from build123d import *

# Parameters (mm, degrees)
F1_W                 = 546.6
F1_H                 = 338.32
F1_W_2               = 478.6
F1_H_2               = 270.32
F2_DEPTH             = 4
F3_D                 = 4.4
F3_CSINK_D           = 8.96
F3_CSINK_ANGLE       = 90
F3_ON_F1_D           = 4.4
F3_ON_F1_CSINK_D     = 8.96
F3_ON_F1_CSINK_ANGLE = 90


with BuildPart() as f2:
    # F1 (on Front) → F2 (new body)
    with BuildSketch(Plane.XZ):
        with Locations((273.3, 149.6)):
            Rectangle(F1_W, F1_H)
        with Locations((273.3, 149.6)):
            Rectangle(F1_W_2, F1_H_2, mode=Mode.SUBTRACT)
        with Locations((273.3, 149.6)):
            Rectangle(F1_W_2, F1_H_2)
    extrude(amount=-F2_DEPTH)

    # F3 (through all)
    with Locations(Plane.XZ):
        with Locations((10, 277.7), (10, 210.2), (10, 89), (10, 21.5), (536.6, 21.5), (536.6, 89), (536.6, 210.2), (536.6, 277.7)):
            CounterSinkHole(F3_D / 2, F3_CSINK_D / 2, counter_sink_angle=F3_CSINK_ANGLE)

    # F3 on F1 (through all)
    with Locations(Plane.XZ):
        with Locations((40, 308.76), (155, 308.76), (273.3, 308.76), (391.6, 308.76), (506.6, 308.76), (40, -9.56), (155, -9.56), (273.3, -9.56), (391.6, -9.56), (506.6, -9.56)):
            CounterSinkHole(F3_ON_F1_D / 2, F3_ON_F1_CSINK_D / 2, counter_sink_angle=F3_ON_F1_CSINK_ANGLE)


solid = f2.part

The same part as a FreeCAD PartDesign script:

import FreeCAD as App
import Part
import Sketcher

V = App.Vector

doc = App.newDocument("Part")
body = doc.addObject("PartDesign::Body", "Body")

sketch1 = doc.addObject("Sketcher::SketchObject", "Sketch")
body.addObject(sketch1)
sketch1.AttachmentSupport = (doc.XZ_Plane, [""])
sketch1.MapMode = "FlatFace"
sketch1.addGeometry([
    Part.LineSegment(V(0, 319, 0), V(0, -20, 0)),
    Part.LineSegment(V(0, -20, 0), V(547, -20, 0)),
    Part.LineSegment(V(547, -20, 0), V(547, 319, 0)),
    Part.LineSegment(V(547, 319, 0), V(0, 319, 0)),
], False)
sketch1.addConstraint([
    Sketcher.Constraint("Coincident", 0, 2, 1, 1),
    Sketcher.Constraint("Coincident", 1, 2, 2, 1),
    Sketcher.Constraint("Coincident", 2, 2, 3, 1),
    Sketcher.Constraint("Coincident", 3, 2, 0, 1),
    Sketcher.Constraint("Vertical", 0),
    Sketcher.Constraint("Horizontal", 1),
    Sketcher.Constraint("Vertical", 2),
    Sketcher.Constraint("Horizontal", 3),
    Sketcher.Constraint("PointOnObject", 0, 2, -2),
    Sketcher.Constraint("DistanceX", 1, 1, 1, 2, 546.6),
    Sketcher.Constraint("DistanceY", 0, 2, 0, 1, 338.32),
    Sketcher.Constraint("DistanceY", 0, 2, -1, 1, 19.56),
])
pad1 = doc.addObject("PartDesign::Pad", "Pad")
body.addObject(pad1)
pad1.Profile = sketch1
pad1.Length = 4
pad1.Reversed = True

sketch2 = doc.addObject("Sketcher::SketchObject", "Sketch001")
body.addObject(sketch2)
sketch2.AttachmentSupport = (doc.XZ_Plane, [""])
sketch2.MapMode = "FlatFace"
sketch2.addGeometry([
    Part.Circle(V(10, 277.7, 0), V(0, 0, 1), 2.2),
    Part.Circle(V(10, 210.2, 0), V(0, 0, 1), 2.2),
    Part.Circle(V(10, 89, 0), V(0, 0, 1), 2.2),
    Part.Circle(V(10, 21.5, 0), V(0, 0, 1), 2.2),
    Part.Circle(V(536.6, 21.5, 0), V(0, 0, 1), 2.2),
    Part.Circle(V(536.6, 89, 0), V(0, 0, 1), 2.2),
    Part.Circle(V(536.6, 210.2, 0), V(0, 0, 1), 2.2),
    Part.Circle(V(536.6, 277.7, 0), V(0, 0, 1), 2.2),
], False)
sketch2.addConstraint([
    Sketcher.Constraint("Equal", 0, 1),
    Sketcher.Constraint("Equal", 1, 2),
    Sketcher.Constraint("Equal", 2, 3),
    Sketcher.Constraint("Equal", 3, 4),
    Sketcher.Constraint("Equal", 4, 5),
    Sketcher.Constraint("Equal", 5, 6),
    Sketcher.Constraint("Equal", 6, 7),
    Sketcher.Constraint("Horizontal", 3, 3, 4, 3),
    Sketcher.Constraint("Horizontal", 2, 3, 5, 3),
    Sketcher.Constraint("Horizontal", 1, 3, 6, 3),
    Sketcher.Constraint("Horizontal", 0, 3, 7, 3),
    Sketcher.Constraint("Vertical", 0, 3, 1, 3),
    Sketcher.Constraint("Vertical", 1, 3, 2, 3),
    Sketcher.Constraint("Vertical", 2, 3, 3, 3),
    Sketcher.Constraint("Vertical", 4, 3, 5, 3),
    Sketcher.Constraint("Vertical", 5, 3, 6, 3),
    Sketcher.Constraint("Vertical", 6, 3, 7, 3),
    Sketcher.Constraint("Diameter", 0, 4.4),
    Sketcher.Constraint("DistanceX", -1, 1, 0, 3, 10.0),
    Sketcher.Constraint("DistanceY", -1, 1, 2, 3, 89.0),
    Sketcher.Constraint("DistanceY", -1, 1, 0, 3, 277.7),
    Sketcher.Constraint("DistanceY", -1, 1, 1, 3, 210.2),
    Sketcher.Constraint("DistanceY", -1, 1, 3, 3, 21.5),
    Sketcher.Constraint("DistanceX", -1, 1, 4, 3, 536.6),
])
doc.recompute()
hole = doc.addObject("PartDesign::Hole", "Hole")
body.addObject(hole)
hole.Profile = sketch2
hole.ThreadType = "None"
hole.Diameter = 4.4
hole.DepthType = "ThroughAll"
hole.HoleCutType = "Countersink"
hole.HoleCutDiameter = 8.96
hole.HoleCutCountersinkAngle = 90

sketch3 = doc.addObject("Sketcher::SketchObject", "Sketch002")
body.addObject(sketch3)
sketch3.AttachmentSupport = (doc.XZ_Plane, [""])
sketch3.MapMode = "FlatFace"
sketch3.addGeometry([
    Part.Circle(V(40, 308.8, 0), V(0, 0, 1), 2.2),
    Part.Circle(V(155, 308.8, 0), V(0, 0, 1), 2.2),
    Part.Circle(V(273.3, 308.8, 0), V(0, 0, 1), 2.2),
    Part.Circle(V(391.6, 308.8, 0), V(0, 0, 1), 2.2),
    Part.Circle(V(506.6, 308.8, 0), V(0, 0, 1), 2.2),
    Part.Circle(V(40, -9.6, 0), V(0, 0, 1), 2.2),
    Part.Circle(V(155, -9.6, 0), V(0, 0, 1), 2.2),
    Part.Circle(V(273.3, -9.6, 0), V(0, 0, 1), 2.2),
    Part.Circle(V(391.6, -9.6, 0), V(0, 0, 1), 2.2),
    Part.Circle(V(506.6, -9.6, 0), V(0, 0, 1), 2.2),
], False)
sketch3.addConstraint([
    Sketcher.Constraint("Equal", 0, 1),
    Sketcher.Constraint("Equal", 1, 2),
    Sketcher.Constraint("Equal", 2, 3),
    Sketcher.Constraint("Equal", 3, 4),
    Sketcher.Constraint("Equal", 4, 5),
    Sketcher.Constraint("Equal", 5, 6),
    Sketcher.Constraint("Equal", 6, 7),
    Sketcher.Constraint("Equal", 7, 8),
    Sketcher.Constraint("Equal", 8, 9),
    Sketcher.Constraint("Horizontal", 0, 3, 1, 3),
    Sketcher.Constraint("Horizontal", 1, 3, 2, 3),
    Sketcher.Constraint("Horizontal", 2, 3, 3, 3),
    Sketcher.Constraint("Horizontal", 3, 3, 4, 3),
    Sketcher.Constraint("Horizontal", 5, 3, 6, 3),
    Sketcher.Constraint("Horizontal", 6, 3, 7, 3),
    Sketcher.Constraint("Horizontal", 7, 3, 8, 3),
    Sketcher.Constraint("Horizontal", 8, 3, 9, 3),
    Sketcher.Constraint("Vertical", 0, 3, 5, 3),
    Sketcher.Constraint("Vertical", 1, 3, 6, 3),
    Sketcher.Constraint("Vertical", 2, 3, 7, 3),
    Sketcher.Constraint("Vertical", 3, 3, 8, 3),
    Sketcher.Constraint("Vertical", 4, 3, 9, 3),
    Sketcher.Constraint("Diameter", 0, 4.4),
    Sketcher.Constraint("DistanceX", -1, 1, 0, 3, 40.0),
    Sketcher.Constraint("DistanceX", -1, 1, 1, 3, 155.0),
    Sketcher.Constraint("DistanceX", 3, 3, 4, 3, 115.0),
    Sketcher.Constraint("DistanceX", -1, 1, 2, 3, 273.3),
    Sketcher.Constraint("DistanceX", -1, 1, 3, 3, 391.6),
    Sketcher.Constraint("DistanceY", -1, 1, 0, 3, 308.76),
    Sketcher.Constraint("DistanceY", 5, 3, -1, 1, 9.56),
])
doc.recompute()
hole2 = doc.addObject("PartDesign::Hole", "Hole001")
body.addObject(hole2)
hole2.Profile = sketch3
hole2.ThreadType = "None"
hole2.Diameter = 4.4
hole2.DepthType = "ThroughAll"
hole2.HoleCutType = "Countersink"
hole2.HoleCutDiameter = 8.96
hole2.HoleCutCountersinkAngle = 90

doc.recompute()
